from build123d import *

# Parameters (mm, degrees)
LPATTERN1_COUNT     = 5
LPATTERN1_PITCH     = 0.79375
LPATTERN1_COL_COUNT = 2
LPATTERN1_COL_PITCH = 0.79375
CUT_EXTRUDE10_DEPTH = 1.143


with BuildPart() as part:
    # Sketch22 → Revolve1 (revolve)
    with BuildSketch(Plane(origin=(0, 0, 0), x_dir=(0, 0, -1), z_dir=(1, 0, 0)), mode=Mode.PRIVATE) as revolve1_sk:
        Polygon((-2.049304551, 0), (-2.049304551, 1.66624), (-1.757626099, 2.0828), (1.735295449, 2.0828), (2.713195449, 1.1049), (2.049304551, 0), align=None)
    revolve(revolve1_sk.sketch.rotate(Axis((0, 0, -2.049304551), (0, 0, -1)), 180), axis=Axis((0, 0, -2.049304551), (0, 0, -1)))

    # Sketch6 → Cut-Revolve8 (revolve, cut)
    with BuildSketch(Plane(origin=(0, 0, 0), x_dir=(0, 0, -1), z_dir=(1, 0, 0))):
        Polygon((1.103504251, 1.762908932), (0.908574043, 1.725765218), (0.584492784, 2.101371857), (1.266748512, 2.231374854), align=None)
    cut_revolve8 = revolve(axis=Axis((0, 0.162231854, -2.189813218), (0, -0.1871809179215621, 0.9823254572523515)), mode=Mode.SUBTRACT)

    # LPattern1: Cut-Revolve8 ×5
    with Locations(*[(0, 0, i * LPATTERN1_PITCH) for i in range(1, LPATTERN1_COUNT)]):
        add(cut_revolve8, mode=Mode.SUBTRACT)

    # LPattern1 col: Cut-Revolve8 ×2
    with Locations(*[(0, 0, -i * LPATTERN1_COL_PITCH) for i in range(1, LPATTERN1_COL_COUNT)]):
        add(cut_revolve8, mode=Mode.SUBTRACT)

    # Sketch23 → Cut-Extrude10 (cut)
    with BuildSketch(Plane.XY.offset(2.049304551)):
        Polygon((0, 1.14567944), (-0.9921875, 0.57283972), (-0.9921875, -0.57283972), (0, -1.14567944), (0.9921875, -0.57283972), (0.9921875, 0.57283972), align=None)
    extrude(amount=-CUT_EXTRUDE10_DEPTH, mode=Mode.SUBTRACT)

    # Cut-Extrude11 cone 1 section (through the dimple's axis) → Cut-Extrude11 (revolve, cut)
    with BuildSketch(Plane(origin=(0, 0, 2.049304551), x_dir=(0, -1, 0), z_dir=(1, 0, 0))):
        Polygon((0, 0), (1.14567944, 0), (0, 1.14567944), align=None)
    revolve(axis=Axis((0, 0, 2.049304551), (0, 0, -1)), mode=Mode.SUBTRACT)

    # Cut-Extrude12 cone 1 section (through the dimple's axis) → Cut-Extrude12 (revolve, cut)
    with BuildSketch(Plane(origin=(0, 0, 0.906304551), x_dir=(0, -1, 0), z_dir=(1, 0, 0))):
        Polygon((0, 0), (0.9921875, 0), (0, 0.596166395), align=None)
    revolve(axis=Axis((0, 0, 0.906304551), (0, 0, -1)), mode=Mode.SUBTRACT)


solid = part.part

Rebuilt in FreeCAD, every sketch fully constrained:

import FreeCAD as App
import Part
import Sketcher

V = App.Vector
Q = App.Units.Quantity


def add_polygon(sketch, points):
    """Adds a closed chain of lines whose ends are joined by coincident constraints."""
    first, n = sketch.GeometryCount, len(points)
    for a, b in zip(points, points[1:] + points[:1]):
        sketch.addGeometry(Part.LineSegment(App.Vector(*a, 0), App.Vector(*b, 0)), False)
    for i in range(n):
        sketch.addConstraint(Sketcher.Constraint("Coincident", first + i, 2, first + (i + 1) % n, 1))

doc = App.newDocument("Part")
body = doc.addObject("PartDesign::Body", "Body")

sketch1 = body.newObject("Sketcher::SketchObject", "Sketch")
sketch1.AttachmentSupport = (doc.getObject("YZ_Plane"), [""])
sketch1.MapMode = "FlatFace"
add_polygon(sketch1, [(1.7, 2), (0, 2), (0, -2), (1.1, -2.7), (2.1, -1.7), (2.1, 1.8)])
sketch1.addConstraint([
    Sketcher.Constraint("Horizontal", 0),
    Sketcher.Constraint("Vertical", 1),
    Sketcher.Constraint("Vertical", 4),
    Sketcher.Constraint("Symmetric", 0, 2, 1, 2, -1, 1),
    Sketcher.Constraint("Angle", 2, Q("-31 deg")),
    Sketcher.Constraint("Angle", 3, Q("45 deg")),
    Sketcher.Constraint("Angle", 5, Q("145 deg")),
    Sketcher.Constraint("DistanceX", 0, 2, 0, 1, Q("0.0656 in")),
    Sketcher.Constraint("DistanceX", -1, 1, 3, 2, Q("0.082 in")),
    Sketcher.Constraint("DistanceY", 2, 2, 0, 2, Q("0.1875 in")),
    Sketcher.Constraint("DistanceY", 3, 2, 0, 2, Q("0.149 in")),
])
revolution = body.newObject("PartDesign::Revolution", "Revolution")
revolution.Profile = sketch1
revolution.ReferenceAxis = (sketch1, ["V_Axis"])
revolution.Angle = 360

sketch2 = body.newObject("Sketcher::SketchObject", "Sketch001")
sketch2.AttachmentSupport = (doc.getObject("YZ_Plane"), [""])
sketch2.MapMode = "FlatFace"
add_polygon(sketch2, [(1.73, -0.91), (1.76, -1.1), (2.23, -1.27), (2.1, -0.58)])
sketch2.addGeometry(Part.LineSegment(V(0.07, -1.68, 0), V(-0.07, -1, 0)), True)
sketch2.addConstraint([
    Sketcher.Constraint("Parallel", 0, 2),
    Sketcher.Constraint("Parallel", 2, 4),
    Sketcher.Constraint("Equal", 1, 3),
    Sketcher.Constraint("Equal", 2, 4),
    Sketcher.Constraint("DistanceX", -1, 1, 4, 1, 0.065001),
    Sketcher.Constraint("DistanceX", 4, 2, -1, 1, 0.065001),
    Sketcher.Constraint("DistanceY", 4, 1, 1, 2, 0.4128),
    Sketcher.Constraint("Distance", 2, 0.694531),
    Sketcher.Constraint("DistanceX", -1, 1, 0, 2, 1.762909),
    Sketcher.Constraint("DistanceY", 1, 2, -1, 1, 1.266749),
    Sketcher.Constraint("DistanceX", -1, 1, 2, 2, 2.101372),
    Sketcher.Constraint("DistanceY", 0, 2, 2, 2, 0.519011),
])
groove = body.newObject("PartDesign::Groove", "Groove")
groove.Profile = sketch2
groove.ReferenceAxis = (sketch2, ["Axis0"])
groove.Angle = 360
doc.recompute()

linearpattern = body.newObject("PartDesign::LinearPattern", "LinearPattern")
linearpattern.Originals = [groove]
linearpattern.Direction = (doc.getObject("Z_Axis"), [""])
linearpattern.Mode = "offset"
linearpattern.Offset = Q("0.03125 in")
linearpattern.Occurrences = 5
body.Tip = linearpattern
doc.recompute()

linearpattern2 = body.newObject("PartDesign::LinearPattern", "LinearPattern001")
linearpattern2.Originals = [groove]
linearpattern2.Direction = (doc.getObject("Z_Axis"), [""])
linearpattern2.Mode = "offset"
linearpattern2.Offset = Q("0.03125 in")
linearpattern2.Occurrences = 2
linearpattern2.Reversed = True
body.Tip = linearpattern2

sketch3 = body.newObject("Sketcher::SketchObject", "Sketch002")
sketch3.AttachmentSupport = (doc.getObject("XY_Plane"), [""])
sketch3.MapMode = "FlatFace"
sketch3.AttachmentOffset = App.Placement(V(0, 0, 2.049305), App.Rotation())
add_polygon(sketch3, [(0, 1.1), (-1, 0.6), (-1, -0.6), (0, -1.1), (1, -0.6), (1, 0.6)])
sketch3.addConstraint([
    Sketcher.Constraint("Vertical", 1),
    Sketcher.Constraint("Vertical", 4),
    Sketcher.Constraint("Symmetric", 0, 2, 3, 2, -1, 1),
    Sketcher.Constraint("Symmetric", 2, 2, 5, 2, -1, 1),
    Sketcher.Constraint("PointOnObject", 2, 2, -2),
    Sketcher.Constraint("Parallel", 2, 5),
    Sketcher.Constraint("Horizontal", 1, 2, 3, 2),
    Sketcher.Constraint("Angle", 0, Q("-150 deg")),
    Sketcher.Constraint("DistanceX", 1, 2, 3, 2, Q("0.078125 in")),
    Sketcher.Constraint("DistanceY", 1, 2, 1, 1, 1.145679),
])
pocket1 = body.newObject("PartDesign::Pocket", "Pocket")
pocket1.Profile = sketch3
pocket1.Length = Q("0.045 in")

sketch4 = body.newObject("Sketcher::SketchObject", "Sketch003")
sketch4.AttachmentSupport = (doc.getObject("YZ_Plane"), [""])
sketch4.MapMode = "FlatFace"
add_polygon(sketch4, [(0, 2), (-1.1, 2), (0, 0.9)])
sketch4.addConstraint([
    Sketcher.Constraint("Horizontal", 0),
    Sketcher.Constraint("Vertical", 2),
    Sketcher.Constraint("PointOnObject", 1, 2, -2),
    Sketcher.Constraint("Equal", 0, 2),
    Sketcher.Constraint("DistanceX", 0, 2, 0, 1, 1.145679),
    Sketcher.Constraint("DistanceY", -1, 1, 0, 2, 2.049305),
])
groove2 = body.newObject("PartDesign::Groove", "Groove001")
groove2.Profile = sketch4
groove2.ReferenceAxis = (sketch4, ["V_Axis"])
groove2.Angle = 360

sketch5 = body.newObject("Sketcher::SketchObject", "Sketch004")
sketch5.AttachmentSupport = (doc.getObject("YZ_Plane"), [""])
sketch5.MapMode = "FlatFace"
add_polygon(sketch5, [(0, 0.9), (-1, 0.9), (0, 0.3)])
sketch5.addConstraint([
    Sketcher.Constraint("Horizontal", 0),
    Sketcher.Constraint("Vertical", 2),
    Sketcher.Constraint("PointOnObject", 1, 2, -2),
    Sketcher.Constraint("Angle", 1, Q("-31 deg")),
    Sketcher.Constraint("Distance", 1, 1.157519),
    Sketcher.Constraint("DistanceY", -1, 1, 1, 2, 0.310138),
])
groove3 = body.newObject("PartDesign::Groove", "Groove002")
groove3.Profile = sketch5
groove3.ReferenceAxis = (sketch5, ["V_Axis"])
groove3.Angle = 360

doc.recompute()
